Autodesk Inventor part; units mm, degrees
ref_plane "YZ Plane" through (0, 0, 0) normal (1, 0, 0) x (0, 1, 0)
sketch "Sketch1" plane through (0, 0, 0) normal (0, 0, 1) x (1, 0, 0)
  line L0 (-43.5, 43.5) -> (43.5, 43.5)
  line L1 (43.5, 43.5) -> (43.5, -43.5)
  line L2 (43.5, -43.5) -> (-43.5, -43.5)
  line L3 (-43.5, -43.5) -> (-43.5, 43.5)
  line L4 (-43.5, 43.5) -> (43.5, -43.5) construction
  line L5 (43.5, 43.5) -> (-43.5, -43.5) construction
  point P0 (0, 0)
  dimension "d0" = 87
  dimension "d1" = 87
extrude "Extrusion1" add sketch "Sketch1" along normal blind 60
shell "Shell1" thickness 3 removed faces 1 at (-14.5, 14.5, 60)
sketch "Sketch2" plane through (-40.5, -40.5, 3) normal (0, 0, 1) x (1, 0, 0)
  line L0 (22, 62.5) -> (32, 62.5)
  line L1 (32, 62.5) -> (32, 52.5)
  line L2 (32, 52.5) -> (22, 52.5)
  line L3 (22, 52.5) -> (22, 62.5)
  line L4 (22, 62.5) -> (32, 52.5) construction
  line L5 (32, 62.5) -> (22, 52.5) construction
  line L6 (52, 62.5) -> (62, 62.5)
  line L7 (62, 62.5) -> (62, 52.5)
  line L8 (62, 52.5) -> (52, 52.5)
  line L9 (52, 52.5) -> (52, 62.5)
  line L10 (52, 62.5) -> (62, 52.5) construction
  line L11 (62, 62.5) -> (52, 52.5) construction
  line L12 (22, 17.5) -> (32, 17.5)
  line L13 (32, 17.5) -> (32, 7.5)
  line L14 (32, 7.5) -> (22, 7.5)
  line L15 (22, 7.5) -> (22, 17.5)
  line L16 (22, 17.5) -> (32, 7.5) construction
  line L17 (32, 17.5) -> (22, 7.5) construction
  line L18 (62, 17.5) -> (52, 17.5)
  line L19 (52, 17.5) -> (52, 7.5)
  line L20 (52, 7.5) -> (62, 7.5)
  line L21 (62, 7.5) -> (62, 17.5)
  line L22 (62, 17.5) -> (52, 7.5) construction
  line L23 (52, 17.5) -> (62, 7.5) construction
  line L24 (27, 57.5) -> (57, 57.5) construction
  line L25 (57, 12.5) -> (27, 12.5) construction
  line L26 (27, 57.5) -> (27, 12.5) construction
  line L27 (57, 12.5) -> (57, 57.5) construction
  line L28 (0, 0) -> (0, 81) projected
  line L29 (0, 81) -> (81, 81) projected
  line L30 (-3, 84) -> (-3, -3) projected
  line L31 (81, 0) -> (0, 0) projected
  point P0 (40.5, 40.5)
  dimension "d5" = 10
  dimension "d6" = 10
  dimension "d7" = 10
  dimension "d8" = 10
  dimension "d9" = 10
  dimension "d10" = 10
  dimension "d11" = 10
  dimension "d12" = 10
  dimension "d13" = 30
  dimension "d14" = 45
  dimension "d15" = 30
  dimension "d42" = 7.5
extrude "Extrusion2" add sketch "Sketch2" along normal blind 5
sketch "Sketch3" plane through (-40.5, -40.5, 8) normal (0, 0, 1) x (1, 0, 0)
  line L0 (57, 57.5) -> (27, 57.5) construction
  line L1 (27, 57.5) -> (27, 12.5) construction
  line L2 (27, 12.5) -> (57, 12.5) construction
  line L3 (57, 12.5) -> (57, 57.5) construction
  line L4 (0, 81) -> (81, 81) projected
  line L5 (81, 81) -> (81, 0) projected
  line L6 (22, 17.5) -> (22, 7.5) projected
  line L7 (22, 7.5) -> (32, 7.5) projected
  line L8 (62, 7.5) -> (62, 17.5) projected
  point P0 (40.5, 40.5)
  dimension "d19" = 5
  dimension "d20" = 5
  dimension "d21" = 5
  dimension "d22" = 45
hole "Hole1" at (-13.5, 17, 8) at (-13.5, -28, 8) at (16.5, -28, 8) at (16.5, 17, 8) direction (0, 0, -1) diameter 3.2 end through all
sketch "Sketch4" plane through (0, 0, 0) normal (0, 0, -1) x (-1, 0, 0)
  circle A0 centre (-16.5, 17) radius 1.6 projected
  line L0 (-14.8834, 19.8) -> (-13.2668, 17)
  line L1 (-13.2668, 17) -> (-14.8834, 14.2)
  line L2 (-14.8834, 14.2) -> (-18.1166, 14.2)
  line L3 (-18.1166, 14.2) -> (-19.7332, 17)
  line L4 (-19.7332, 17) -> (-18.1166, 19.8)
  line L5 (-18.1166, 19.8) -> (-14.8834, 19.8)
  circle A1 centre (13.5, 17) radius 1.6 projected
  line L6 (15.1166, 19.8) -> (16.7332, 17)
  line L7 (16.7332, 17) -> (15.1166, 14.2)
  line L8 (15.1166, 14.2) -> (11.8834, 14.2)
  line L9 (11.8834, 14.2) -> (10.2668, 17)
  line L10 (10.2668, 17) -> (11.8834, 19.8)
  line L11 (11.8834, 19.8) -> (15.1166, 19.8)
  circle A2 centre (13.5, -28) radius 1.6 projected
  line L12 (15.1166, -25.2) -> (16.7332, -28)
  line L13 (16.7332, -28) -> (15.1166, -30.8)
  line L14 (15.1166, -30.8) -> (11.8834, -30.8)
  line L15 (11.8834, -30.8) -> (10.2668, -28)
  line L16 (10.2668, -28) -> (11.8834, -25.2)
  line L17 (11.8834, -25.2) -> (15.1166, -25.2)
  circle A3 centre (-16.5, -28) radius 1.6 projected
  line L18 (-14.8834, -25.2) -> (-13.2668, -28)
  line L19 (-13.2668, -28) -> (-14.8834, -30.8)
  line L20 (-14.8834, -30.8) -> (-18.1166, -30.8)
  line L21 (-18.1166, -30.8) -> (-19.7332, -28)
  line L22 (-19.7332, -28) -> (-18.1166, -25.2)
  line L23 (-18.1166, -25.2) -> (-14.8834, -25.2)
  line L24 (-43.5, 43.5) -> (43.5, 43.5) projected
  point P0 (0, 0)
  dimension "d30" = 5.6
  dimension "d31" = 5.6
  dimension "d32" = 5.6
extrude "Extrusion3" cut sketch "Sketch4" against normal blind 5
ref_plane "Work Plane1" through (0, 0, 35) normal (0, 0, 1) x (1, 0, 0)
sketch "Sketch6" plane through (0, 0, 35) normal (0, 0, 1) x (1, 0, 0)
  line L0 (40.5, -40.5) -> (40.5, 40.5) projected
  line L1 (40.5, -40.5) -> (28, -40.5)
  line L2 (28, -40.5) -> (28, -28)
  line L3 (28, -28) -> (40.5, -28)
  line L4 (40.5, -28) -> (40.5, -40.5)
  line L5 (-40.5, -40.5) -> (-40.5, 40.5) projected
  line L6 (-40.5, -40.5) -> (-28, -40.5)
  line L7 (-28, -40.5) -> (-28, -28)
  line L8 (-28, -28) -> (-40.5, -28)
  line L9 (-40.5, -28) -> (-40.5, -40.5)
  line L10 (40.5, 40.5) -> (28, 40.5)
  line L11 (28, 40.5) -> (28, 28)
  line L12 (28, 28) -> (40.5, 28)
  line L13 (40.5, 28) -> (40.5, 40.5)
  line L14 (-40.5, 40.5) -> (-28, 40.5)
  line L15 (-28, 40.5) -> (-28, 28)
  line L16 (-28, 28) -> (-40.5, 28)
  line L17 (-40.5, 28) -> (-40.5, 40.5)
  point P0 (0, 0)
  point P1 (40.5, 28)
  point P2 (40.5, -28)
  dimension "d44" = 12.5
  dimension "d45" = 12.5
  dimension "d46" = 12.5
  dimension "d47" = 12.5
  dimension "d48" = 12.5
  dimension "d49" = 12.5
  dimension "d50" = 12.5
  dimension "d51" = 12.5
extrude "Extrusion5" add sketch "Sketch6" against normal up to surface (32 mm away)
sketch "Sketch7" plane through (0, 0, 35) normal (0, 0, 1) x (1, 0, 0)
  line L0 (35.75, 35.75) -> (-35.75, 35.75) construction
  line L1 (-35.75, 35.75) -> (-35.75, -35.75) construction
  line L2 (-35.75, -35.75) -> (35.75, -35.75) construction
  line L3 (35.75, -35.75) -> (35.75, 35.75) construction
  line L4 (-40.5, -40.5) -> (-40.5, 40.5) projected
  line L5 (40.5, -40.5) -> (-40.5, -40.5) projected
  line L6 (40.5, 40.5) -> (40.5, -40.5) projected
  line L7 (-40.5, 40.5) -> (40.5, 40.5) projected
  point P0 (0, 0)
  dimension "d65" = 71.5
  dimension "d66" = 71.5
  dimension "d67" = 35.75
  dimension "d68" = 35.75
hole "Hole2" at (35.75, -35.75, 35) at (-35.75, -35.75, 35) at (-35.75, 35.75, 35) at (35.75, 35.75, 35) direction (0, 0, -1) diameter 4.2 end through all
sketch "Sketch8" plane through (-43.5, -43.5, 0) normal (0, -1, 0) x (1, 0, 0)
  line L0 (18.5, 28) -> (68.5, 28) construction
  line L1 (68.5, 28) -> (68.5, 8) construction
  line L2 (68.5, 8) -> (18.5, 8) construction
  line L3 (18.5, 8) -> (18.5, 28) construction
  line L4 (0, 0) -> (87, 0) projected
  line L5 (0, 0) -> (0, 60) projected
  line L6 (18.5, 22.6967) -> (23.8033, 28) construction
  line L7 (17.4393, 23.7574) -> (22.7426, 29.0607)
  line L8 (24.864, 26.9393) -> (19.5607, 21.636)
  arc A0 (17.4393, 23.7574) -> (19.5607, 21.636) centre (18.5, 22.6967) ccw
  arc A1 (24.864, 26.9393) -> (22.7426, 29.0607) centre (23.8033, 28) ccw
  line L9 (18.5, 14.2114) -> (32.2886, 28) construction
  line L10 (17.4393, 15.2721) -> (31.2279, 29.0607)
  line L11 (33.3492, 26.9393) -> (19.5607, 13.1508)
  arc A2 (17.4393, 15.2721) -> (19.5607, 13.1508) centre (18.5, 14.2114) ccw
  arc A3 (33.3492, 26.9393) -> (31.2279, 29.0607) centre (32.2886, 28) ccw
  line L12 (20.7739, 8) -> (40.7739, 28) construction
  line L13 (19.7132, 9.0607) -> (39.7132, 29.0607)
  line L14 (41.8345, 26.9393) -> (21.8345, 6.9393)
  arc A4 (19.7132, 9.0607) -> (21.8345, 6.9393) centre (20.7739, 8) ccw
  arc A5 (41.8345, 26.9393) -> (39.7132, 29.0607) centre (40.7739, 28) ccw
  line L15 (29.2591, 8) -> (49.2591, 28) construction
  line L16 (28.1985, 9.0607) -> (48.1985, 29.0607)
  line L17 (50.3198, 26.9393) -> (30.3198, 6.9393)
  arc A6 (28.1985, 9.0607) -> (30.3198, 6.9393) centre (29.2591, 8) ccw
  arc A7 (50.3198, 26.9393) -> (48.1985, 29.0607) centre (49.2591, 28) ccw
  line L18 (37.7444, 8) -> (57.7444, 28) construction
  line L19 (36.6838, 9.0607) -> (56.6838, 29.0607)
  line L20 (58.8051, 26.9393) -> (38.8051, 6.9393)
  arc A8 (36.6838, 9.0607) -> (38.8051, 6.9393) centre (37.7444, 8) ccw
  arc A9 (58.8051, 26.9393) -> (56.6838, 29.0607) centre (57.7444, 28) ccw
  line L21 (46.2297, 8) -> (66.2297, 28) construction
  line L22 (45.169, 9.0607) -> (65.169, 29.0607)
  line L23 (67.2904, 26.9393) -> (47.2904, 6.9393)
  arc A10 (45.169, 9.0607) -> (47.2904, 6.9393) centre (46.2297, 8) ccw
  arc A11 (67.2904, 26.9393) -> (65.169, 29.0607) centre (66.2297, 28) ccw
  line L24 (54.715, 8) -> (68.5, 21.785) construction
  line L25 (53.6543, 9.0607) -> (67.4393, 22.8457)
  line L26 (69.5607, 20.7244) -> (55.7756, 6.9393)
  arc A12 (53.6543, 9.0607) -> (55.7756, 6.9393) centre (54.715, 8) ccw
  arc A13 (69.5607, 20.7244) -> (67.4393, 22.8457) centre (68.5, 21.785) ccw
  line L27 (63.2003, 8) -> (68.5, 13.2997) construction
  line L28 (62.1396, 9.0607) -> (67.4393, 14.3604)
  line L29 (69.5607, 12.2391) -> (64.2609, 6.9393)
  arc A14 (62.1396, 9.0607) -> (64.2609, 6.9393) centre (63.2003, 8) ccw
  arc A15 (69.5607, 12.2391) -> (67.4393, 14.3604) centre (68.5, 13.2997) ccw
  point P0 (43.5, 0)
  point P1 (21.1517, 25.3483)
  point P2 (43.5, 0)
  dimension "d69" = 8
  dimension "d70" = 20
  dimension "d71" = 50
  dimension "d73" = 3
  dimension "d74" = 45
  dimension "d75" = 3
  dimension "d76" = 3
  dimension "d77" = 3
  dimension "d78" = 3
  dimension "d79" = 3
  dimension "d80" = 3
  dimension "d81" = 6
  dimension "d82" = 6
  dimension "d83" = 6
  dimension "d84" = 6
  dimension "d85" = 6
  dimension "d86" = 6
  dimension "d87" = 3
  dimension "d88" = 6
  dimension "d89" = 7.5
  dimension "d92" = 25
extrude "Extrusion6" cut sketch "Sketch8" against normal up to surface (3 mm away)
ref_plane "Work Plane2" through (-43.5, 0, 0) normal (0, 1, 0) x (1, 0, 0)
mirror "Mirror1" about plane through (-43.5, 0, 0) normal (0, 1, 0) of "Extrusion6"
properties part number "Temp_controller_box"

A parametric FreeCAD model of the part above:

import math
import FreeCAD as App
import Part
import Sketcher
Q = App.Units.Quantity


def faces_at(feature, points):
    """Names of the faces that lie closest to the given points."""
    faces = feature.Shape.Faces
    near = lambda p: min(range(len(faces)), key=lambda i: faces[i].distToShape(Part.Vertex(*p))[0])
    return sorted({f"Face{near(p) + 1}" for p in points})

doc = App.newDocument("Part")
body = doc.addObject("PartDesign::Body", "Body")

# Sketch on XY plane
sketch1 = doc.addObject("Sketcher::SketchObject", "Sketch")
body.addObject(sketch1)
sketch1.AttachmentSupport = (doc.XY_Plane, [""])
sketch1.MapMode = "FlatFace"
sketch1.addGeometry(Part.LineSegment(App.Vector(43.5, 43.5, 0), App.Vector(-43.5, 43.5, 0)), False)
sketch1.addGeometry(Part.LineSegment(App.Vector(-43.5, 43.5, 0), App.Vector(-43.5, -43.5, 0)), False)
sketch1.addGeometry(Part.LineSegment(App.Vector(-43.5, -43.5, 0), App.Vector(43.5, -43.5, 0)), False)
sketch1.addGeometry(Part.LineSegment(App.Vector(43.5, -43.5, 0), App.Vector(43.5, 43.5, 0)), False)
sketch1.addConstraint(Sketcher.Constraint("Coincident", 0, 2, 1, 1))
sketch1.addConstraint(Sketcher.Constraint("Coincident", 1, 2, 2, 1))
sketch1.addConstraint(Sketcher.Constraint("Coincident", 2, 2, 3, 1))
sketch1.addConstraint(Sketcher.Constraint("Coincident", 3, 2, 0, 1))
sketch1.addConstraint(Sketcher.Constraint("Horizontal", 0))
sketch1.addConstraint(Sketcher.Constraint("Vertical", 1))
sketch1.addConstraint(Sketcher.Constraint("Horizontal", 2))
sketch1.addConstraint(Sketcher.Constraint("Vertical", 3))
sketch1.addConstraint(Sketcher.Constraint("Symmetric", 0, 2, 2, 2, -1, 1))
sketch1.addConstraint(Sketcher.Constraint("Equal", 2, 1))
sketch1.addConstraint(Sketcher.Constraint("DistanceX", 0, 2, 0, 1, 87.0))
pad1 = doc.addObject("PartDesign::Pad", "Pad")
body.addObject(pad1)
pad1.Profile = sketch1
pad1.Length = 60
doc.recompute()

thickness = doc.addObject("PartDesign::Thickness", "Thickness")
body.addObject(thickness)
thickness.Base = (pad1, faces_at(pad1, [(-14.5, 14.5, 60)]))
thickness.Value = 3
thickness.Reversed = True
thickness.Join = "Intersection"

# Sketch on XY plane
sketch2 = doc.addObject("Sketcher::SketchObject", "Sketch001")
body.addObject(sketch2)
sketch2.AttachmentSupport = (doc.XY_Plane, [""])
sketch2.MapMode = "FlatFace"
sketch2.AttachmentOffset = App.Placement(App.Vector(0, 0, 3), App.Rotation())
sketch2.addGeometry(Part.LineSegment(App.Vector(-8.5, 22, 0), App.Vector(-18.5, 22, 0)), False)
sketch2.addGeometry(Part.LineSegment(App.Vector(-18.5, 22, 0), App.Vector(-18.5, 12, 0)), False)
sketch2.addGeometry(Part.LineSegment(App.Vector(-18.5, 12, 0), App.Vector(-8.5, 12, 0)), False)
sketch2.addGeometry(Part.LineSegment(App.Vector(-8.5, 12, 0), App.Vector(-8.5, 22, 0)), False)
sketch2.addGeometry(Part.LineSegment(App.Vector(21.5, 22, 0), App.Vector(11.5, 22, 0)), False)
sketch2.addGeometry(Part.LineSegment(App.Vector(11.5, 22, 0), App.Vector(11.5, 12, 0)), False)
sketch2.addGeometry(Part.LineSegment(App.Vector(11.5, 12, 0), App.Vector(21.5, 12, 0)), False)
sketch2.addGeometry(Part.LineSegment(App.Vector(21.5, 12, 0), App.Vector(21.5, 22, 0)), False)
sketch2.addGeometry(Part.LineSegment(App.Vector(-8.5, -23, 0), App.Vector(-18.5, -23, 0)), False)
sketch2.addGeometry(Part.LineSegment(App.Vector(-18.5, -23, 0), App.Vector(-18.5, -33, 0)), False)
sketch2.addGeometry(Part.LineSegment(App.Vector(-18.5, -33, 0), App.Vector(-8.5, -33, 0)), False)
sketch2.addGeometry(Part.LineSegment(App.Vector(-8.5, -33, 0), App.Vector(-8.5, -23, 0)), False)
sketch2.addGeometry(Part.LineSegment(App.Vector(21.5, -33, 0), App.Vector(21.5, -23, 0)), False)
sketch2.addGeometry(Part.LineSegment(App.Vector(21.5, -23, 0), App.Vector(11.5, -23, 0)), False)
sketch2.addGeometry(Part.LineSegment(App.Vector(11.5, -23, 0), App.Vector(11.5, -33, 0)), False)
sketch2.addGeometry(Part.LineSegment(App.Vector(11.5, -33, 0), App.Vector(21.5, -33, 0)), False)
sketch2.addConstraint(Sketcher.Constraint("Coincident", 0, 2, 1, 1))
sketch2.addConstraint(Sketcher.Constraint("Coincident", 1, 2, 2, 1))
sketch2.addConstraint(Sketcher.Constraint("Coincident", 2, 2, 3, 1))
sketch2.addConstraint(Sketcher.Constraint("Coincident", 3, 2, 0, 1))
sketch2.addConstraint(Sketcher.Constraint("Coincident", 4, 2, 5, 1))
sketch2.addConstraint(Sketcher.Constraint("Coincident", 5, 2, 6, 1))
sketch2.addConstraint(Sketcher.Constraint("Coincident", 6, 2, 7, 1))
sketch2.addConstraint(Sketcher.Constraint("Coincident", 7, 2, 4, 1))
sketch2.addConstraint(Sketcher.Constraint("Coincident", 8, 2, 9, 1))
sketch2.addConstraint(Sketcher.Constraint("Coincident", 9, 2, 10, 1))
sketch2.addConstraint(Sketcher.Constraint("Coincident", 10, 2, 11, 1))
sketch2.addConstraint(Sketcher.Constraint("Coincident", 11, 2, 8, 1))
sketch2.addConstraint(Sketcher.Constraint("Coincident", 12, 2, 13, 1))
sketch2.addConstraint(Sketcher.Constraint("Coincident", 13, 2, 14, 1))
sketch2.addConstraint(Sketcher.Constraint("Coincident", 14, 2, 15, 1))
sketch2.addConstraint(Sketcher.Constraint("Coincident", 15, 2, 12, 1))
sketch2.addConstraint(Sketcher.Constraint("Horizontal", 0))
sketch2.addConstraint(Sketcher.Constraint("Vertical", 1))
sketch2.addConstraint(Sketcher.Constraint("Horizontal", 2))
sketch2.addConstraint(Sketcher.Constraint("Vertical", 3))
sketch2.addConstraint(Sketcher.Constraint("Horizontal", 4))
sketch2.addConstraint(Sketcher.Constraint("Vertical", 5))
sketch2.addConstraint(Sketcher.Constraint("Horizontal", 6))
sketch2.addConstraint(Sketcher.Constraint("Vertical", 7))
sketch2.addConstraint(Sketcher.Constraint("Horizontal", 8))
sketch2.addConstraint(Sketcher.Constraint("Vertical", 9))
sketch2.addConstraint(Sketcher.Constraint("Horizontal", 10))
sketch2.addConstraint(Sketcher.Constraint("Vertical", 11))
sketch2.addConstraint(Sketcher.Constraint("Vertical", 12))
sketch2.addConstraint(Sketcher.Constraint("Horizontal", 13))
sketch2.addConstraint(Sketcher.Constraint("Vertical", 14))
sketch2.addConstraint(Sketcher.Constraint("Horizontal", 15))
sketch2.addConstraint(Sketcher.Constraint("Horizontal", 3, 2, 4, 2))
sketch2.addConstraint(Sketcher.Constraint("Horizontal", 2, 2, 5, 2))
sketch2.addConstraint(Sketcher.Constraint("Horizontal", 11, 2, 12, 2))
sketch2.addConstraint(Sketcher.Constraint("Horizontal", 10, 2, 14, 2))
sketch2.addConstraint(Sketcher.Constraint("Vertical", 1, 2, 8, 2))
sketch2.addConstraint(Sketcher.Constraint("Vertical", 3, 2, 10, 2))
sketch2.addConstraint(Sketcher.Constraint("Vertical", 7, 2, 12, 2))
sketch2.addConstraint(Sketcher.Constraint("Vertical", 5, 2, 13, 2))
sketch2.addConstraint(Sketcher.Constraint("Equal", 2, 4))
sketch2.addConstraint(Sketcher.Constraint("Equal", 15, 1))
sketch2.addConstraint(Sketcher.Constraint("Equal", 7, 9))
sketch2.addConstraint(Sketcher.Constraint("DistanceX", 0, 2, 0, 1, 10.0))
sketch2.addConstraint(Sketcher.Constraint("DistanceX", 0, 2, 4, 2, 30.0))
sketch2.addConstraint(Sketcher.Constraint("DistanceY", 8, 2, 0, 2, 45.0))
sketch2.addConstraint(Sketcher.Constraint("DistanceY", -1, 1, 0, 2, 22.0))
sketch2.addConstraint(Sketcher.Constraint("DistanceX", 0, 2, -1, 1, 18.5))
pad2 = doc.addObject("PartDesign::Pad", "Pad001")
body.addObject(pad2)
pad2.Profile = sketch2
pad2.Length = 5

# Sketch on XY plane
sketch3 = doc.addObject("Sketcher::SketchObject", "Sketch002")
body.addObject(sketch3)
sketch3.AttachmentSupport = (doc.XY_Plane, [""])
sketch3.MapMode = "FlatFace"
sketch3.AttachmentOffset = App.Placement(App.Vector(0, 0, 8), App.Rotation())
sketch3.addGeometry(Part.Circle(App.Vector(-13.5, 17, 0), App.Vector(0, 0, 1), 1.6), False)
sketch3.addGeometry(Part.Circle(App.Vector(-13.5, -28, 0), App.Vector(0, 0, 1), 1.6), False)
sketch3.addGeometry(Part.Circle(App.Vector(16.5, -28, 0), App.Vector(0, 0, 1), 1.6), False)
sketch3.addGeometry(Part.Circle(App.Vector(16.5, 17, 0), App.Vector(0, 0, 1), 1.6), False)
sketch3.addConstraint(Sketcher.Constraint("Equal", 0, 1))
sketch3.addConstraint(Sketcher.Constraint("Equal", 1, 2))
sketch3.addConstraint(Sketcher.Constraint("Equal", 2, 3))
sketch3.addConstraint(Sketcher.Constraint("Horizontal", 1, 3, 2, 3))
sketch3.addConstraint(Sketcher.Constraint("Horizontal", 0, 3, 3, 3))
sketch3.addConstraint(Sketcher.Constraint("Vertical", 0, 3, 1, 3))
sketch3.addConstraint(Sketcher.Constraint("Vertical", 2, 3, 3, 3))
sketch3.addConstraint(Sketcher.Constraint("Diameter", 0, 3.2))
sketch3.addConstraint(Sketcher.Constraint("DistanceY", -1, 1, 0, 3, 17.0))
sketch3.addConstraint(Sketcher.Constraint("DistanceY", 1, 3, -1, 1, 28.0))
sketch3.addConstraint(Sketcher.Constraint("DistanceX", 1, 3, 2, 3, 30.0))
sketch3.addConstraint(Sketcher.Constraint("DistanceX", 0, 3, -1, 1, 13.5))
doc.recompute()
hole = doc.addObject("PartDesign::Hole", "Hole")
body.addObject(hole)
hole.Profile = sketch3
hole.ThreadType = "None"
hole.Diameter = 3.2
hole.DepthType = "ThroughAll"

# Sketch on XY plane
sketch4 = doc.addObject("Sketcher::SketchObject", "Sketch003")
body.addObject(sketch4)
sketch4.AttachmentSupport = (doc.XY_Plane, [""])
sketch4.MapMode = "FlatFace"
sketch4.addGeometry(Part.LineSegment(App.Vector(13.2668, 17, 0), App.Vector(14.8834, 19.8, 0)), False)
sketch4.addGeometry(Part.LineSegment(App.Vector(14.8834, 19.8, 0), App.Vector(18.1166, 19.8, 0)), False)
sketch4.addGeometry(Part.LineSegment(App.Vector(18.1166, 19.8, 0), App.Vector(19.7332, 17, 0)), False)
sketch4.addGeometry(Part.LineSegment(App.Vector(19.7332, 17, 0), App.Vector(18.1166, 14.2, 0)), False)
sketch4.addGeometry(Part.LineSegment(App.Vector(18.1166, 14.2, 0), App.Vector(14.8834, 14.2, 0)), False)
sketch4.addGeometry(Part.LineSegment(App.Vector(14.8834, 14.2, 0), App.Vector(13.2668, 17, 0)), False)
sketch4.addGeometry(Part.Circle(App.Vector(16.5, 17, 0), App.Vector(0, 0, 1), 1.6), False)
sketch4.addGeometry(Part.LineSegment(App.Vector(-16.7332, 17, 0), App.Vector(-15.1166, 19.8, 0)), False)
sketch4.addGeometry(Part.LineSegment(App.Vector(-15.1166, 19.8, 0), App.Vector(-11.8834, 19.8, 0)), False)
sketch4.addGeometry(Part.LineSegment(App.Vector(-11.8834, 19.8, 0), App.Vector(-10.2668, 17, 0)), False)
sketch4.addGeometry(Part.LineSegment(App.Vector(-10.2668, 17, 0), App.Vector(-11.8834, 14.2, 0)), False)
sketch4.addGeometry(Part.LineSegment(App.Vector(-11.8834, 14.2, 0), App.Vector(-15.1166, 14.2, 0)), False)
sketch4.addGeometry(Part.LineSegment(App.Vector(-15.1166, 14.2, 0), App.Vector(-16.7332, 17, 0)), False)
sketch4.addGeometry(Part.Circle(App.Vector(-13.5, 17, 0), App.Vector(0, 0, 1), 1.6), False)
sketch4.addGeometry(Part.LineSegment(App.Vector(-16.7332, -28, 0), App.Vector(-15.1166, -25.2, 0)), False)
sketch4.addGeometry(Part.LineSegment(App.Vector(-15.1166, -25.2, 0), App.Vector(-11.8834, -25.2, 0)), False)
sketch4.addGeometry(Part.LineSegment(App.Vector(-11.8834, -25.2, 0), App.Vector(-10.2668, -28, 0)), False)
sketch4.addGeometry(Part.LineSegment(App.Vector(-10.2668, -28, 0), App.Vector(-11.8834, -30.8, 0)), False)
sketch4.addGeometry(Part.LineSegment(App.Vector(-11.8834, -30.8, 0), App.Vector(-15.1166, -30.8, 0)), False)
sketch4.addGeometry(Part.LineSegment(App.Vector(-15.1166, -30.8, 0), App.Vector(-16.7332, -28, 0)), False)
sketch4.addGeometry(Part.Circle(App.Vector(-13.5, -28, 0), App.Vector(0, 0, 1), 1.6), False)
sketch4.addGeometry(Part.LineSegment(App.Vector(13.2668, -28, 0), App.Vector(14.8834, -25.2, 0)), False)
sketch4.addGeometry(Part.LineSegment(App.Vector(14.8834, -25.2, 0), App.Vector(18.1166, -25.2, 0)), False)
sketch4.addGeometry(Part.LineSegment(App.Vector(18.1166, -25.2, 0), App.Vector(19.7332, -28, 0)), False)
sketch4.addGeometry(Part.LineSegment(App.Vector(19.7332, -28, 0), App.Vector(18.1166, -30.8, 0)), False)
sketch4.addGeometry(Part.LineSegment(App.Vector(18.1166, -30.8, 0), App.Vector(14.8834, -30.8, 0)), False)
sketch4.addGeometry(Part.LineSegment(App.Vector(14.8834, -30.8, 0), App.Vector(13.2668, -28, 0)), False)
sketch4.addGeometry(Part.Circle(App.Vector(16.5, -28, 0), App.Vector(0, 0, 1), 1.6), False)
sketch4.addConstraint(Sketcher.Constraint("Coincident", 0, 2, 1, 1))
sketch4.addConstraint(Sketcher.Constraint("Coincident", 1, 2, 2, 1))
sketch4.addConstraint(Sketcher.Constraint("Coincident", 2, 2, 3, 1))
sketch4.addConstraint(Sketcher.Constraint("Coincident", 3, 2, 4, 1))
sketch4.addConstraint(Sketcher.Constraint("Coincident", 4, 2, 5, 1))
sketch4.addConstraint(Sketcher.Constraint("Coincident", 5, 2, 0, 1))
sketch4.addConstraint(Sketcher.Constraint("Coincident", 7, 2, 8, 1))
sketch4.addConstraint(Sketcher.Constraint("Coincident", 8, 2, 9, 1))
sketch4.addConstraint(Sketcher.Constraint("Coincident", 9, 2, 10, 1))
sketch4.addConstraint(Sketcher.Constraint("Coincident", 10, 2, 11, 1))
sketch4.addConstraint(Sketcher.Constraint("Coincident", 11, 2, 12, 1))
sketch4.addConstraint(Sketcher.Constraint("Coincident", 12, 2, 7, 1))
sketch4.addConstraint(Sketcher.Constraint("Coincident", 14, 2, 15, 1))
sketch4.addConstraint(Sketcher.Constraint("Coincident", 15, 2, 16, 1))
sketch4.addConstraint(Sketcher.Constraint("Coincident", 16, 2, 17, 1))
sketch4.addConstraint(Sketcher.Constraint("Coincident", 17, 2, 18, 1))
sketch4.addConstraint(Sketcher.Constraint("Coincident", 18, 2, 19, 1))
sketch4.addConstraint(Sketcher.Constraint("Coincident", 19, 2, 14, 1))
sketch4.addConstraint(Sketcher.Constraint("Coincident", 21, 2, 22, 1))
sketch4.addConstraint(Sketcher.Constraint("Coincident", 22, 2, 23, 1))
sketch4.addConstraint(Sketcher.Constraint("Coincident", 23, 2, 24, 1))
sketch4.addConstraint(Sketcher.Constraint("Coincident", 24, 2, 25, 1))
sketch4.addConstraint(Sketcher.Constraint("Coincident", 25, 2, 26, 1))
sketch4.addConstraint(Sketcher.Constraint("Coincident", 26, 2, 21, 1))
sketch4.addConstraint(Sketcher.Constraint("Horizontal", 1))
sketch4.addConstraint(Sketcher.Constraint("Horizontal", 4))
sketch4.addConstraint(Sketcher.Constraint("Horizontal", 8))
sketch4.addConstraint(Sketcher.Constraint("Horizontal", 11))
sketch4.addConstraint(Sketcher.Constraint("Horizontal", 15))
sketch4.addConstraint(Sketcher.Constraint("Horizontal", 18))
sketch4.addConstraint(Sketcher.Constraint("Horizontal", 22))
sketch4.addConstraint(Sketcher.Constraint("Horizontal", 25))
sketch4.addConstraint(Sketcher.Constraint("Equal", 6, 13))
sketch4.addConstraint(Sketcher.Constraint("Equal", 13, 20))
sketch4.addConstraint(Sketcher.Constraint("Equal", 20, 27))
sketch4.addConstraint(Sketcher.Constraint("Parallel", 0, 3))
sketch4.addConstraint(Sketcher.Constraint("Parallel", 2, 5))
sketch4.addConstraint(Sketcher.Constraint("Parallel", 3, 7))
sketch4.addConstraint(Sketcher.Constraint("Parallel", 5, 9))
sketch4.addConstraint(Sketcher.Constraint("Parallel", 7, 10))
sketch4.addConstraint(Sketcher.Constraint("Parallel", 9, 12))
sketch4.addConstraint(Sketcher.Constraint("Parallel", 10, 14))
sketch4.addConstraint(Sketcher.Constraint("Parallel", 12, 16))
sketch4.addConstraint(Sketcher.Constraint("Parallel", 14, 17))
sketch4.addConstraint(Sketcher.Constraint("Parallel", 16, 19))
sketch4.addConstraint(Sketcher.Constraint("Parallel", 17, 21))
sketch4.addConstraint(Sketcher.Constraint("Parallel", 19, 23))
sketch4.addConstraint(Sketcher.Constraint("Parallel", 21, 24))
sketch4.addConstraint(Sketcher.Constraint("Parallel", 23, 26))
sketch4.addConstraint(Sketcher.Constraint("Horizontal", 6, 3, 13, 3))
sketch4.addConstraint(Sketcher.Constraint("Horizontal", 20, 3, 27, 3))
sketch4.addConstraint(Sketcher.Constraint("Horizontal", 13, 3, 2, 2))
sketch4.addConstraint(Sketcher.Constraint("Horizontal", 2, 2, 5, 2))
sketch4.addConstraint(Sketcher.Constraint("Horizontal", 1, 2, 7, 2))
sketch4.addConstraint(Sketcher.Constraint("Horizontal", 5, 2, 9, 2))
sketch4.addConstraint(Sketcher.Constraint("Horizontal", 4, 2, 10, 2))
sketch4.addConstraint(Sketcher.Constraint("Horizontal", 9, 2, 12, 2))
sketch4.addConstraint(Sketcher.Constraint("Horizontal", 27, 3, 16, 2))
sketch4.addConstraint(Sketcher.Constraint("Horizontal", 16, 2, 19, 2))
sketch4.addConstraint(Sketcher.Constraint("Horizontal", 15, 2, 21, 2))
sketch4.addConstraint(Sketcher.Constraint("Horizontal", 19, 2, 23, 2))
sketch4.addConstraint(Sketcher.Constraint("Horizontal", 18, 2, 24, 2))
sketch4.addConstraint(Sketcher.Constraint("Horizontal", 23, 2, 26, 2))
sketch4.addConstraint(Sketcher.Constraint("Vertical", 13, 3, 20, 3))
sketch4.addConstraint(Sketcher.Constraint("Vertical", 6, 3, 27, 3))
sketch4.addConstraint(Sketcher.Constraint("Vertical", 1, 2, 3, 2))
sketch4.addConstraint(Sketcher.Constraint("Vertical", 0, 2, 4, 2))
sketch4.addConstraint(Sketcher.Constraint("Vertical", 11, 2, 14, 2))
sketch4.addConstraint(Sketcher.Constraint("Vertical", 10, 2, 15, 2))
sketch4.addConstraint(Sketcher.Constraint("Vertical", 9, 2, 16, 2))
sketch4.addConstraint(Sketcher.Constraint("Vertical", 15, 2, 17, 2))
sketch4.addConstraint(Sketcher.Constraint("Vertical", 4, 2, 21, 2))
sketch4.addConstraint(Sketcher.Constraint("Vertical", 3, 2, 22, 2))
sketch4.addConstraint(Sketcher.Constraint("Equal", 4, 8))
sketch4.addConstraint(Sketcher.Constraint("Diameter", 6, 3.2))
sketch4.addConstraint(Sketcher.Constraint("DistanceY", 3, 2, 1, 2, 5.6))
sketch4.addConstraint(Sketcher.Constraint("Angle", 0, Q("59.9997 deg")))
sketch4.addConstraint(Sketcher.Constraint("DistanceY", -1, 1, 6, 3, 17.0))
sketch4.addConstraint(Sketcher.Constraint("DistanceY", 20, 3, -1, 1, 28.0))
sketch4.addConstraint(Sketcher.Constraint("DistanceX", 13, 3, 6, 3, 30.0))
sketch4.addConstraint(Sketcher.Constraint("DistanceX", 7, 2, 0, 2, 30.0))
sketch4.addConstraint(Sketcher.Constraint("DistanceX", -1, 1, 6, 3, 16.5))
sketch4.addConstraint(Sketcher.Constraint("DistanceX", 1, 1, 1, 2, 3.2332))
sketch4.addConstraint(Sketcher.Constraint("DistanceX", -1, 1, 0, 2, 14.8834))
pocket1 = doc.addObject("PartDesign::Pocket", "Pocket")
body.addObject(pocket1)
pocket1.Profile = sketch4
pocket1.Length = 5
pocket1.Reversed = True

# Sketch on XY plane
sketch5 = doc.addObject("Sketcher::SketchObject", "Sketch004")
body.addObject(sketch5)
sketch5.AttachmentSupport = (doc.XY_Plane, [""])
sketch5.MapMode = "FlatFace"
sketch5.AttachmentOffset = App.Placement(App.Vector(0, 0, 35), App.Rotation())
sketch5.addGeometry(Part.LineSegment(App.Vector(28, -40.5, 0), App.Vector(40.5, -40.5, 0)), False)
sketch5.addGeometry(Part.LineSegment(App.Vector(40.5, -40.5, 0), App.Vector(40.5, -28, 0)), False)
sketch5.addGeometry(Part.LineSegment(App.Vector(40.5, -28, 0), App.Vector(28, -28, 0)), False)
sketch5.addGeometry(Part.LineSegment(App.Vector(28, -28, 0), App.Vector(28, -40.5, 0)), False)
sketch5.addGeometry(Part.LineSegment(App.Vector(28, 28, 0), App.Vector(40.5, 28, 0)), False)
sketch5.addGeometry(Part.LineSegment(App.Vector(40.5, 28, 0), App.Vector(40.5, 40.5, 0)), False)
sketch5.addGeometry(Part.LineSegment(App.Vector(40.5, 40.5, 0), App.Vector(28, 40.5, 0)), False)
sketch5.addGeometry(Part.LineSegment(App.Vector(28, 40.5, 0), App.Vector(28, 28, 0)), False)
sketch5.addGeometry(Part.LineSegment(App.Vector(-40.5, 40.5, 0), App.Vector(-40.5, 28, 0)), False)
sketch5.addGeometry(Part.LineSegment(App.Vector(-40.5, 28, 0), App.Vector(-28, 28, 0)), False)
sketch5.addGeometry(Part.LineSegment(App.Vector(-28, 28, 0), App.Vector(-28, 40.5, 0)), False)
sketch5.addGeometry(Part.LineSegment(App.Vector(-28, 40.5, 0), App.Vector(-40.5, 40.5, 0)), False)
sketch5.addGeometry(Part.LineSegment(App.Vector(-40.5, -28, 0), App.Vector(-40.5, -40.5, 0)), False)
sketch5.addGeometry(Part.LineSegment(App.Vector(-40.5, -40.5, 0), App.Vector(-28, -40.5, 0)), False)
sketch5.addGeometry(Part.LineSegment(App.Vector(-28, -40.5, 0), App.Vector(-28, -28, 0)), False)
sketch5.addGeometry(Part.LineSegment(App.Vector(-28, -28, 0), App.Vector(-40.5, -28, 0)), False)
sketch5.addConstraint(Sketcher.Constraint("Coincident", 0, 2, 1, 1))
sketch5.addConstraint(Sketcher.Constraint("Coincident", 1, 2, 2, 1))
sketch5.addConstraint(Sketcher.Constraint("Coincident", 2, 2, 3, 1))
sketch5.addConstraint(Sketcher.Constraint("Coincident", 3, 2, 0, 1))
sketch5.addConstraint(Sketcher.Constraint("Coincident", 4, 2, 5, 1))
sketch5.addConstraint(Sketcher.Constraint("Coincident", 5, 2, 6, 1))
sketch5.addConstraint(Sketcher.Constraint("Coincident", 6, 2, 7, 1))
sketch5.addConstraint(Sketcher.Constraint("Coincident", 7, 2, 4, 1))
sketch5.addConstraint(Sketcher.Constraint("Coincident", 8, 2, 9, 1))
sketch5.addConstraint(Sketcher.Constraint("Coincident", 9, 2, 10, 1))
sketch5.addConstraint(Sketcher.Constraint("Coincident", 10, 2, 11, 1))
sketch5.addConstraint(Sketcher.Constraint("Coincident", 11, 2, 8, 1))
sketch5.addConstraint(Sketcher.Constraint("Coincident", 12, 2, 13, 1))
sketch5.addConstraint(Sketcher.Constraint("Coincident", 13, 2, 14, 1))
sketch5.addConstraint(Sketcher.Constraint("Coincident", 14, 2, 15, 1))
sketch5.addConstraint(Sketcher.Constraint("Coincident", 15, 2, 12, 1))
sketch5.addConstraint(Sketcher.Constraint("Horizontal", 0))
sketch5.addConstraint(Sketcher.Constraint("Vertical", 1))
sketch5.addConstraint(Sketcher.Constraint("Horizontal", 2))
sketch5.addConstraint(Sketcher.Constraint("Vertical", 3))
sketch5.addConstraint(Sketcher.Constraint("Horizontal", 4))
sketch5.addConstraint(Sketcher.Constraint("Vertical", 5))
sketch5.addConstraint(Sketcher.Constraint("Horizontal", 6))
sketch5.addConstraint(Sketcher.Constraint("Vertical", 7))
sketch5.addConstraint(Sketcher.Constraint("Vertical", 8))
sketch5.addConstraint(Sketcher.Constraint("Horizontal", 9))
sketch5.addConstraint(Sketcher.Constraint("Vertical", 10))
sketch5.addConstraint(Sketcher.Constraint("Horizontal", 11))
sketch5.addConstraint(Sketcher.Constraint("Vertical", 12))
sketch5.addConstraint(Sketcher.Constraint("Horizontal", 13))
sketch5.addConstraint(Sketcher.Constraint("Vertical", 14))
sketch5.addConstraint(Sketcher.Constraint("Horizontal", 15))
sketch5.addConstraint(Sketcher.Constraint("Symmetric", 1, 2, 8, 2, -1, 1))
sketch5.addConstraint(Sketcher.Constraint("Symmetric", 3, 2, 10, 2, -1, 1))
sketch5.addConstraint(Sketcher.Constraint("Symmetric", 5, 2, 12, 2, -1, 1))
sketch5.addConstraint(Sketcher.Constraint("Symmetric", 7, 2, 14, 2, -1, 1))
sketch5.addConstraint(Sketcher.Constraint("Symmetric", 4, 2, 8, 2, -2))
sketch5.addConstraint(Sketcher.Constraint("Symmetric", 6, 2, 10, 2, -2))
sketch5.addConstraint(Sketcher.Constraint("Equal", 15, 1))
sketch5.addConstraint(Sketcher.Constraint("DistanceX", 0, 1, 0, 2, 12.5))
sketch5.addConstraint(Sketcher.Constraint("DistanceY", 1, 2, -1, 1, 28.0))
sketch5.addConstraint(Sketcher.Constraint("DistanceX", -1, 1, 2, 2, 28.0))
pad3 = doc.addObject("PartDesign::Pad", "Pad002")
body.addObject(pad3)
pad3.Profile = sketch5
pad3.Length = 32
pad3.Reversed = True

# Sketch on XY plane
sketch6 = doc.addObject("Sketcher::SketchObject", "Sketch005")
body.addObject(sketch6)
sketch6.AttachmentSupport = (doc.XY_Plane, [""])
sketch6.MapMode = "FlatFace"
sketch6.AttachmentOffset = App.Placement(App.Vector(0, 0, 35), App.Rotation())
sketch6.addGeometry(Part.Circle(App.Vector(35.75, -35.75, 0), App.Vector(0, 0, 1), 2.1), False)
sketch6.addGeometry(Part.Circle(App.Vector(-35.75, -35.75, 0), App.Vector(0, 0, 1), 2.1), False)
sketch6.addGeometry(Part.Circle(App.Vector(-35.75, 35.75, 0), App.Vector(0, 0, 1), 2.1), False)
sketch6.addGeometry(Part.Circle(App.Vector(35.75, 35.75, 0), App.Vector(0, 0, 1), 2.1), False)
sketch6.addConstraint(Sketcher.Constraint("Equal", 0, 1))
sketch6.addConstraint(Sketcher.Constraint("Equal", 1, 2))
sketch6.addConstraint(Sketcher.Constraint("Equal", 2, 3))
sketch6.addConstraint(Sketcher.Constraint("Symmetric", 0, 3, 2, 3, -1, 1))
sketch6.addConstraint(Sketcher.Constraint("Symmetric", 1, 3, 3, 3, -1, 1))
sketch6.addConstraint(Sketcher.Constraint("Symmetric", 0, 3, 1, 3, -2))
sketch6.addConstraint(Sketcher.Constraint("Diameter", 0, 4.2))
sketch6.addConstraint(Sketcher.Constraint("DistanceX", 1, 3, 0, 3, 71.5))
sketch6.addConstraint(Sketcher.Constraint("DistanceY", 1, 3, 2, 3, 71.5))
doc.recompute()
hole2 = doc.addObject("PartDesign::Hole", "Hole001")
body.addObject(hole2)
hole2.Profile = sketch6
hole2.ThreadType = "None"
hole2.Diameter = 4.2
hole2.DepthType = "ThroughAll"

# Sketch on XZ plane
sketch7 = doc.addObject("Sketcher::SketchObject", "Sketch006")
body.addObject(sketch7)
sketch7.AttachmentSupport = (doc.XZ_Plane, [""])
sketch7.MapMode = "FlatFace"
sketch7.AttachmentOffset = App.Placement(App.Vector(0, 0, 43.5), App.Rotation())
sketch7.addGeometry(Part.LineSegment(App.Vector(-20.7574, 29.0607, 0), App.Vector(-26.0607, 23.7574, 0)), False)
sketch7.addGeometry(Part.ArcOfCircle(Part.Circle(App.Vector(-25, 22.6967, 0), App.Vector(0, 0, 1), 1.500056), math.radians(135), math.radians(315)), False)
sketch7.addGeometry(Part.LineSegment(App.Vector(-23.9393, 21.636, 0), App.Vector(-18.636, 26.9393, 0)), False)
sketch7.addGeometry(Part.ArcOfCircle(Part.Circle(App.Vector(-19.6967, 28, 0), App.Vector(0, 0, 1), 1.500056), math.radians(-45), math.radians(135)), False)
sketch7.addGeometry(Part.LineSegment(App.Vector(-12.2721, 29.0607, 0), App.Vector(-26.0607, 15.2721, 0)), False)
sketch7.addGeometry(Part.ArcOfCircle(Part.Circle(App.Vector(-25, 14.2114, 0), App.Vector(0, 0, 1), 1.500056), math.radians(135), math.radians(315.002701)), False)
sketch7.addGeometry(Part.LineSegment(App.Vector(-23.9393, 13.1508, 0), App.Vector(-10.1508, 26.9393, 0)), False)
sketch7.addGeometry(Part.ArcOfCircle(Part.Circle(App.Vector(-11.2114, 28, 0), App.Vector(0, 0, 1), 1.499986), math.radians(-45.002701), math.radians(135)), False)
sketch7.addGeometry(Part.LineSegment(App.Vector(-3.7868, 29.0607, 0), App.Vector(-23.7868, 9.0607, 0)), False)
sketch7.addGeometry(Part.ArcOfCircle(Part.Circle(App.Vector(-22.7261, 8, 0), App.Vector(0, 0, 1), 1.500056), math.radians(135), math.radians(314.997299)), False)
sketch7.addGeometry(Part.LineSegment(App.Vector(-21.6655, 6.9393, 0), App.Vector(-1.6655, 26.9393, 0)), False)
sketch7.addGeometry(Part.ArcOfCircle(Part.Circle(App.Vector(-2.7261, 28, 0), App.Vector(0, 0, 1), 1.499986), math.radians(-45.002701), math.radians(135)), False)
sketch7.addGeometry(Part.LineSegment(App.Vector(4.6985, 29.0607, 0), App.Vector(-15.3015, 9.0607, 0)), False)
sketch7.addGeometry(Part.ArcOfCircle(Part.Circle(App.Vector(-14.2409, 8, 0), App.Vector(0, 0, 1), 1.499986), math.radians(134.997299), math.radians(315)), False)
sketch7.addGeometry(Part.LineSegment(App.Vector(-13.1802, 6.9393, 0), App.Vector(6.8198, 26.9393, 0)), False)
sketch7.addGeometry(Part.ArcOfCircle(Part.Circle(App.Vector(5.7591, 28, 0), App.Vector(0, 0, 1), 1.500056), math.radians(-45), math.radians(134.997299)), False)
sketch7.addGeometry(Part.LineSegment(App.Vector(13.1838, 29.0607, 0), App.Vector(-6.8162, 9.0607, 0)), False)
sketch7.addGeometry(Part.ArcOfCircle(Part.Circle(App.Vector(-5.7556, 8, 0), App.Vector(0, 0, 1), 1.499986), math.radians(134.997299), math.radians(315)), False)
sketch7.addGeometry(Part.LineSegment(App.Vector(-4.6949, 6.9393, 0), App.Vector(15.3051, 26.9393, 0)), False)
sketch7.addGeometry(Part.ArcOfCircle(Part.Circle(App.Vector(14.2444, 28, 0), App.Vector(0, 0, 1), 1.500056), math.radians(-45), math.radians(134.997299)), False)
sketch7.addGeometry(Part.LineSegment(App.Vector(21.669, 29.0607, 0), App.Vector(1.669, 9.0607, 0)), False)
sketch7.addGeometry(Part.ArcOfCircle(Part.Circle(App.Vector(2.7297, 8, 0), App.Vector(0, 0, 1), 1.500056), math.radians(135), math.radians(315)), False)
sketch7.addGeometry(Part.LineSegment(App.Vector(3.7904, 6.9393, 0), App.Vector(23.7904, 26.9393, 0)), False)
sketch7.addGeometry(Part.ArcOfCircle(Part.Circle(App.Vector(22.7297, 28, 0), App.Vector(0, 0, 1), 1.500056), math.radians(-45), math.radians(135)), False)
sketch7.addGeometry(Part.LineSegment(App.Vector(23.9393, 22.8457, 0), App.Vector(10.1543, 9.0607, 0)), False)
sketch7.addGeometry(Part.ArcOfCircle(Part.Circle(App.Vector(11.215, 8, 0), App.Vector(0, 0, 1), 1.500056), math.radians(135), math.radians(314.997299)), False)
sketch7.addGeometry(Part.LineSegment(App.Vector(12.2756, 6.9393, 0), App.Vector(26.0607, 20.7244, 0)), False)
sketch7.addGeometry(Part.ArcOfCircle(Part.Circle(App.Vector(25, 21.785, 0), App.Vector(0, 0, 1), 1.499986), math.radians(-44.997299), math.radians(135)), False)
sketch7.addGeometry(Part.LineSegment(App.Vector(23.9393, 14.3604, 0), App.Vector(18.6396, 9.0607, 0)), False)
sketch7.addGeometry(Part.ArcOfCircle(Part.Circle(App.Vector(19.7003, 8, 0), App.Vector(0, 0, 1), 1.500056), math.radians(135), math.radians(314.997299)), False)
sketch7.addGeometry(Part.LineSegment(App.Vector(20.7609, 6.9393, 0), App.Vector(26.0607, 12.2391, 0)), False)
sketch7.addGeometry(Part.ArcOfCircle(Part.Circle(App.Vector(25, 13.2997, 0), App.Vector(0, 0, 1), 1.499986), math.radians(-44.997299), math.radians(135)), False)
sketch7.addConstraint(Sketcher.Constraint("Tangent", 0, 2, 1, 1))
sketch7.addConstraint(Sketcher.Constraint("Tangent", 1, 2, 2, 1))
sketch7.addConstraint(Sketcher.Constraint("Tangent", 2, 2, 3, 1))
sketch7.addConstraint(Sketcher.Constraint("Tangent", 3, 2, 0, 1))
sketch7.addConstraint(Sketcher.Constraint("Tangent", 4, 2, 5, 1))
sketch7.addConstraint(Sketcher.Constraint("Tangent", 5, 2, 6, 1))
sketch7.addConstraint(Sketcher.Constraint("Tangent", 6, 2, 7, 1))
sketch7.addConstraint(Sketcher.Constraint("Tangent", 7, 2, 4, 1))
sketch7.addConstraint(Sketcher.Constraint("Tangent", 8, 2, 9, 1))
sketch7.addConstraint(Sketcher.Constraint("Tangent", 9, 2, 10, 1))
sketch7.addConstraint(Sketcher.Constraint("Tangent", 10, 2, 11, 1))
sketch7.addConstraint(Sketcher.Constraint("Tangent", 11, 2, 8, 1))
sketch7.addConstraint(Sketcher.Constraint("Tangent", 12, 2, 13, 1))
sketch7.addConstraint(Sketcher.Constraint("Tangent", 13, 2, 14, 1))
sketch7.addConstraint(Sketcher.Constraint("Tangent", 14, 2, 15, 1))
sketch7.addConstraint(Sketcher.Constraint("Tangent", 15, 2, 12, 1))
sketch7.addConstraint(Sketcher.Constraint("Tangent", 16, 2, 17, 1))
sketch7.addConstraint(Sketcher.Constraint("Tangent", 17, 2, 18, 1))
sketch7.addConstraint(Sketcher.Constraint("Tangent", 18, 2, 19, 1))
sketch7.addConstraint(Sketcher.Constraint("Tangent", 19, 2, 16, 1))
sketch7.addConstraint(Sketcher.Constraint("Tangent", 20, 2, 21, 1))
sketch7.addConstraint(Sketcher.Constraint("Tangent", 21, 2, 22, 1))
sketch7.addConstraint(Sketcher.Constraint("Tangent", 22, 2, 23, 1))
sketch7.addConstraint(Sketcher.Constraint("Tangent", 23, 2, 20, 1))
sketch7.addConstraint(Sketcher.Constraint("Tangent", 24, 2, 25, 1))
sketch7.addConstraint(Sketcher.Constraint("Tangent", 25, 2, 26, 1))
sketch7.addConstraint(Sketcher.Constraint("Tangent", 26, 2, 27, 1))
sketch7.addConstraint(Sketcher.Constraint("Tangent", 27, 2, 24, 1))
sketch7.addConstraint(Sketcher.Constraint("Tangent", 28, 2, 29, 1))
sketch7.addConstraint(Sketcher.Constraint("Tangent", 29, 2, 30, 1))
sketch7.addConstraint(Sketcher.Constraint("Tangent", 30, 2, 31, 1))
sketch7.addConstraint(Sketcher.Constraint("Tangent", 31, 2, 28, 1))
sketch7.addConstraint(Sketcher.Constraint("Equal", 1, 3))
sketch7.addConstraint(Sketcher.Constraint("Equal", 3, 5))
sketch7.addConstraint(Sketcher.Constraint("Equal", 5, 7))
sketch7.addConstraint(Sketcher.Constraint("Equal", 7, 9))
sketch7.addConstraint(Sketcher.Constraint("Equal", 9, 11))
sketch7.addConstraint(Sketcher.Constraint("Equal", 11, 13))
sketch7.addConstraint(Sketcher.Constraint("Equal", 13, 15))
sketch7.addConstraint(Sketcher.Constraint("Equal", 15, 17))
sketch7.addConstraint(Sketcher.Constraint("Equal", 17, 19))
sketch7.addConstraint(Sketcher.Constraint("Equal", 19, 21))
sketch7.addConstraint(Sketcher.Constraint("Equal", 21, 23))
sketch7.addConstraint(Sketcher.Constraint("Equal", 23, 25))
sketch7.addConstraint(Sketcher.Constraint("Equal", 25, 27))
sketch7.addConstraint(Sketcher.Constraint("Equal", 27, 29))
sketch7.addConstraint(Sketcher.Constraint("Equal", 29, 31))
sketch7.addConstraint(Sketcher.Constraint("Parallel", 2, 4))
sketch7.addConstraint(Sketcher.Constraint("Parallel", 6, 8))
sketch7.addConstraint(Sketcher.Constraint("Parallel", 10, 12))
sketch7.addConstraint(Sketcher.Constraint("Parallel", 14, 16))
sketch7.addConstraint(Sketcher.Constraint("Parallel", 18, 20))
sketch7.addConstraint(Sketcher.Constraint("Parallel", 22, 24))
sketch7.addConstraint(Sketcher.Constraint("Parallel", 26, 28))
sketch7.addConstraint(Sketcher.Constraint("Horizontal", 3, 3, 7, 3))
sketch7.addConstraint(Sketcher.Constraint("Horizontal", 7, 3, 11, 3))
sketch7.addConstraint(Sketcher.Constraint("Horizontal", 9, 3, 13, 3))
sketch7.addConstraint(Sketcher.Constraint("Horizontal", 11, 3, 15, 3))
sketch7.addConstraint(Sketcher.Constraint("Horizontal", 13, 3, 17, 3))
sketch7.addConstraint(Sketcher.Constraint("Horizontal", 15, 3, 19, 3))
sketch7.addConstraint(Sketcher.Constraint("Horizontal", 17, 3, 21, 3))
sketch7.addConstraint(Sketcher.Constraint("Horizontal", 19, 3, 23, 3))
sketch7.addConstraint(Sketcher.Constraint("Horizontal", 21, 3, 25, 3))
sketch7.addConstraint(Sketcher.Constraint("Horizontal", 25, 3, 29, 3))
sketch7.addConstraint(Sketcher.Constraint("Vertical", 1, 3, 5, 3))
sketch7.addConstraint(Sketcher.Constraint("Vertical", 27, 3, 31, 3))
sketch7.addConstraint(Sketcher.Constraint("Radius", 1, 1.5))
sketch7.addConstraint(Sketcher.Constraint("Angle", 2, Q("45 deg")))
sketch7.addConstraint(Sketcher.Constraint("DistanceX", 1, 3, -1, 1, 25.0))
sketch7.addConstraint(Sketcher.Constraint("DistanceY", -1, 1, 9, 3, 8.0))
sketch7.addConstraint(Sketcher.Constraint("DistanceX", -1, 1, 27, 3, 25.0))
sketch7.addConstraint(Sketcher.Constraint("DistanceY", 9, 3, 3, 3, 20.0))
sketch7.addConstraint(Sketcher.Constraint("Distance", 0, 7.5))
sketch7.addConstraint(Sketcher.Constraint("Distance", 4, 19.5))
sketch7.addConstraint(Sketcher.Constraint("Distance", 24, 19.495))
sketch7.addConstraint(Sketcher.Constraint("Distance", 28, 7.495))
sketch7.addConstraint(Sketcher.Constraint("DistanceX", 9, 3, -1, 1, 22.726))
sketch7.addConstraint(Sketcher.Constraint("DistanceX", 13, 3, -1, 1, 14.241))
sketch7.addConstraint(Sketcher.Constraint("DistanceX", 17, 2, -1, 1, 4.695))
sketch7.addConstraint(Sketcher.Constraint("DistanceX", -1, 1, 20, 2, 1.669))
pocket2 = doc.addObject("PartDesign::Pocket", "Pocket001")
body.addObject(pocket2)
pocket2.Profile = sketch7
pocket2.Length = 3
doc.recompute()

mirrored = doc.addObject("PartDesign::Mirrored", "Mirrored")
body.addObject(mirrored)
mirrored.Originals = [pocket2]
mirrored.MirrorPlane = (doc.XZ_Plane, [""])
body.Tip = mirrored

doc.recompute()
